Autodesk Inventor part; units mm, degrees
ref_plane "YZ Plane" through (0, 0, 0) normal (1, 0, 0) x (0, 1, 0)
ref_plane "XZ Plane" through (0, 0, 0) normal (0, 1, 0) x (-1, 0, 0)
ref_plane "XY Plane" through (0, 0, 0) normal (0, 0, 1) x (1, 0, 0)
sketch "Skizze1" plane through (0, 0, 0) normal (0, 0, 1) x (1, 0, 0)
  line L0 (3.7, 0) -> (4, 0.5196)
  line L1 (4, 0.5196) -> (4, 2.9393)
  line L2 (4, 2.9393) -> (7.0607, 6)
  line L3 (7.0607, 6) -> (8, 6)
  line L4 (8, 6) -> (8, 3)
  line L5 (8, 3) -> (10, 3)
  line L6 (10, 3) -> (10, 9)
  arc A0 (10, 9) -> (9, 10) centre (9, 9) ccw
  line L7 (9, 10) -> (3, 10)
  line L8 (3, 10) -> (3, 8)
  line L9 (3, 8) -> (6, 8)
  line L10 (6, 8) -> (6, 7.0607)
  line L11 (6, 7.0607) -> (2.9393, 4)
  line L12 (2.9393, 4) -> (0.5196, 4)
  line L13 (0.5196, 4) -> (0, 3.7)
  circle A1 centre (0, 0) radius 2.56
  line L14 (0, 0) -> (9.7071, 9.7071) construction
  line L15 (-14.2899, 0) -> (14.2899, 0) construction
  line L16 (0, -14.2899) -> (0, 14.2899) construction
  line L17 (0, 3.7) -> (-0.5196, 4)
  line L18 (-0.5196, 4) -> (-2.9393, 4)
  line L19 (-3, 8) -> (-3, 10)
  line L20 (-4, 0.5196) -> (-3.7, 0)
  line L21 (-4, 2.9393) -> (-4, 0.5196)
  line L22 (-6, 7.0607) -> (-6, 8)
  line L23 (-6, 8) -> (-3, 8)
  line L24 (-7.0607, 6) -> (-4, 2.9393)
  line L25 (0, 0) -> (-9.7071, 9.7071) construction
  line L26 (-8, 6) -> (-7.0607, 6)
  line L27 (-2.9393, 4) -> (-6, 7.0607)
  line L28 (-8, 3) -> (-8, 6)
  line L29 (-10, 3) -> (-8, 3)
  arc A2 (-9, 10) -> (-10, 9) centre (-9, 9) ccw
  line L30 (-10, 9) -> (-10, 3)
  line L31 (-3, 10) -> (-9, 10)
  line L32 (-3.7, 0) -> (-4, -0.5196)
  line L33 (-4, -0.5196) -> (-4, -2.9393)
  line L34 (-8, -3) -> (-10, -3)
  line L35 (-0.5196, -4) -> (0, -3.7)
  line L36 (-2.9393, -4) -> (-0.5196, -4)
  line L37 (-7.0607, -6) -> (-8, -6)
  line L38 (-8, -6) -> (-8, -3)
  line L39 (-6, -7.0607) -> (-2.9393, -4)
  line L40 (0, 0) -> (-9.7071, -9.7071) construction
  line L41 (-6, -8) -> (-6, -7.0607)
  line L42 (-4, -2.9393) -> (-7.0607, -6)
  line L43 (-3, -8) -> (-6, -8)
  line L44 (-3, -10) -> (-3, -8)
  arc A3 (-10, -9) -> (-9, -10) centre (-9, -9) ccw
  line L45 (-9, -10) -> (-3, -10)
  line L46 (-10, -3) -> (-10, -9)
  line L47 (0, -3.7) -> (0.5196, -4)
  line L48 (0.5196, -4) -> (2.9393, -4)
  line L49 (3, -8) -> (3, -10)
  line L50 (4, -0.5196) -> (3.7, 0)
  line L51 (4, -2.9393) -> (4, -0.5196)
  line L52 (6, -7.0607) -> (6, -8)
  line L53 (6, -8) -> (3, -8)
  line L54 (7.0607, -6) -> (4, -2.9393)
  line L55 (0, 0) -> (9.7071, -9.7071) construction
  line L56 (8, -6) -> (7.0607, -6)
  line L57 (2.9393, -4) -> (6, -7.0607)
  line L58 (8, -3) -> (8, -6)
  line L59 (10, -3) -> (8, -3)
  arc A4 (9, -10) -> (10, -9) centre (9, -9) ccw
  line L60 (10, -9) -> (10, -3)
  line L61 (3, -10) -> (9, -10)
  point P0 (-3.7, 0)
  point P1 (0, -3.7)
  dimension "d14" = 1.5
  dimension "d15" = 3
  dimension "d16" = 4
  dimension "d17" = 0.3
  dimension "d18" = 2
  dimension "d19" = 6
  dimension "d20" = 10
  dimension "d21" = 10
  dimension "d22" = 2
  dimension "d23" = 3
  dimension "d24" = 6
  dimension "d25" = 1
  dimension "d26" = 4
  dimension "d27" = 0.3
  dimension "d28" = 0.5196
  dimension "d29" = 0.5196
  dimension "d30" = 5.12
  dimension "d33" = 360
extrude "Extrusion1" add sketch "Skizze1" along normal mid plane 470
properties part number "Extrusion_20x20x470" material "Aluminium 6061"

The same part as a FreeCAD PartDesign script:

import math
import FreeCAD as App
import Part
import Sketcher

V = App.Vector
Q = App.Units.Quantity

doc = App.newDocument("Part")
body = doc.addObject("PartDesign::Body", "Body")

sketch1 = doc.addObject("Sketcher::SketchObject", "Sketch")
body.addObject(sketch1)
sketch1.AttachmentSupport = (doc.XY_Plane, [""])
sketch1.MapMode = "FlatFace"
sketch1.addGeometry([
    Part.LineSegment(V(4, -0.5, 0), V(3.7, 0, 0)),
    Part.LineSegment(V(3.7, 0, 0), V(4, 0.5, 0)),
    Part.LineSegment(V(4, 0.5, 0), V(4, 2.9, 0)),
    Part.LineSegment(V(4, 2.9, 0), V(7.1, 6, 0)),
    Part.LineSegment(V(7.1, 6, 0), V(8, 6, 0)),
    Part.LineSegment(V(8, 6, 0), V(8, 3, 0)),
    Part.LineSegment(V(8, 3, 0), V(10, 3, 0)),
    Part.LineSegment(V(10, 3, 0), V(10, 9, 0)),
    Part.ArcOfCircle(Part.Circle(V(9, 9, 0), V(0, 0, 1), 1), math.radians(0), math.radians(90)),
    Part.LineSegment(V(9, 10, 0), V(3, 10, 0)),
    Part.LineSegment(V(3, 10, 0), V(3, 8, 0)),
    Part.LineSegment(V(3, 8, 0), V(6, 8, 0)),
    Part.LineSegment(V(6, 8, 0), V(6, 7.1, 0)),
    Part.LineSegment(V(6, 7.1, 0), V(2.9, 4, 0)),
    Part.LineSegment(V(2.9, 4, 0), V(0.5, 4, 0)),
    Part.LineSegment(V(0.5, 4, 0), V(0, 3.7, 0)),
    Part.LineSegment(V(0, 3.7, 0), V(-0.5, 4, 0)),
    Part.LineSegment(V(-0.5, 4, 0), V(-2.9, 4, 0)),
    Part.LineSegment(V(-2.9, 4, 0), V(-6, 7.1, 0)),
    Part.LineSegment(V(-6, 7.1, 0), V(-6, 8, 0)),
    Part.LineSegment(V(-6, 8, 0), V(-3, 8, 0)),
    Part.LineSegment(V(-3, 8, 0), V(-3, 10, 0)),
    Part.LineSegment(V(-3, 10, 0), V(-9, 10, 0)),
    Part.ArcOfCircle(Part.Circle(V(-9, 9, 0), V(0, 0, 1), 1), math.radians(90), math.radians(180)),
    Part.LineSegment(V(-10, 9, 0), V(-10, 3, 0)),
    Part.LineSegment(V(-10, 3, 0), V(-8, 3, 0)),
    Part.LineSegment(V(-8, 3, 0), V(-8, 6, 0)),
    Part.LineSegment(V(-8, 6, 0), V(-7.1, 6, 0)),
    Part.LineSegment(V(-7.1, 6, 0), V(-4, 2.9, 0)),
    Part.LineSegment(V(-4, 2.9, 0), V(-4, 0.5, 0)),
    Part.LineSegment(V(-4, 0.5, 0), V(-3.7, 0, 0)),
    Part.LineSegment(V(-3.7, 0, 0), V(-4, -0.5, 0)),
    Part.LineSegment(V(-4, -0.5, 0), V(-4, -2.9, 0)),
    Part.LineSegment(V(-4, -2.9, 0), V(-7.1, -6, 0)),
    Part.LineSegment(V(-7.1, -6, 0), V(-8, -6, 0)),
    Part.LineSegment(V(-8, -6, 0), V(-8, -3, 0)),
    Part.LineSegment(V(-8, -3, 0), V(-10, -3, 0)),
    Part.LineSegment(V(-10, -3, 0), V(-10, -9, 0)),
    Part.ArcOfCircle(Part.Circle(V(-9, -9, 0), V(0, 0, 1), 1), math.radians(180), math.radians(270)),
    Part.LineSegment(V(-9, -10, 0), V(-3, -10, 0)),
    Part.LineSegment(V(-3, -10, 0), V(-3, -8, 0)),
    Part.LineSegment(V(-3, -8, 0), V(-6, -8, 0)),
    Part.LineSegment(V(-6, -8, 0), V(-6, -7.1, 0)),
    Part.LineSegment(V(-6, -7.1, 0), V(-2.9, -4, 0)),
    Part.LineSegment(V(-2.9, -4, 0), V(-0.5, -4, 0)),
    Part.LineSegment(V(-0.5, -4, 0), V(0, -3.7, 0)),
    Part.LineSegment(V(0, -3.7, 0), V(0.5, -4, 0)),
    Part.LineSegment(V(0.5, -4, 0), V(2.9, -4, 0)),
    Part.LineSegment(V(2.9, -4, 0), V(6, -7.1, 0)),
    Part.LineSegment(V(6, -7.1, 0), V(6, -8, 0)),
    Part.LineSegment(V(6, -8, 0), V(3, -8, 0)),
    Part.LineSegment(V(3, -8, 0), V(3, -10, 0)),
    Part.LineSegment(V(3, -10, 0), V(9, -10, 0)),
    Part.ArcOfCircle(Part.Circle(V(9, -9, 0), V(0, 0, 1), 1), math.radians(-90), math.radians(0)),
    Part.LineSegment(V(10, -9, 0), V(10, -3, 0)),
    Part.LineSegment(V(10, -3, 0), V(8, -3, 0)),
    Part.LineSegment(V(8, -3, 0), V(8, -6, 0)),
    Part.LineSegment(V(8, -6, 0), V(7.1, -6, 0)),
    Part.LineSegment(V(7.1, -6, 0), V(4, -2.9, 0)),
    Part.LineSegment(V(4, -2.9, 0), V(4, -0.5, 0)),
    Part.Circle(V(0, 0, 0), V(0, 0, 1), 2.6),
], False)
sketch1.addConstraint([
    Sketcher.Constraint("Coincident", 0, 2, 1, 1),
    Sketcher.Constraint("Coincident", 1, 2, 2, 1),
    Sketcher.Constraint("Coincident", 2, 2, 3, 1),
    Sketcher.Constraint("Coincident", 3, 2, 4, 1),
    Sketcher.Constraint("Coincident", 4, 2, 5, 1),
    Sketcher.Constraint("Coincident", 5, 2, 6, 1),
    Sketcher.Constraint("Coincident", 6, 2, 7, 1),
    Sketcher.Constraint("Tangent", 7, 2, 8, 1),
    Sketcher.Constraint("Tangent", 8, 2, 9, 1),
    Sketcher.Constraint("Coincident", 9, 2, 10, 1),
    Sketcher.Constraint("Coincident", 10, 2, 11, 1),
    Sketcher.Constraint("Coincident", 11, 2, 12, 1),
    Sketcher.Constraint("Coincident", 12, 2, 13, 1),
    Sketcher.Constraint("Coincident", 13, 2, 14, 1),
    Sketcher.Constraint("Coincident", 14, 2, 15, 1),
    Sketcher.Constraint("Coincident", 15, 2, 16, 1),
    Sketcher.Constraint("Coincident", 16, 2, 17, 1),
    Sketcher.Constraint("Coincident", 17, 2, 18, 1),
    Sketcher.Constraint("Coincident", 18, 2, 19, 1),
    Sketcher.Constraint("Coincident", 19, 2, 20, 1),
    Sketcher.Constraint("Coincident", 20, 2, 21, 1),
    Sketcher.Constraint("Coincident", 21, 2, 22, 1),
    Sketcher.Constraint("Tangent", 22, 2, 23, 1),
    Sketcher.Constraint("Tangent", 23, 2, 24, 1),
    Sketcher.Constraint("Coincident", 24, 2, 25, 1),
    Sketcher.Constraint("Coincident", 25, 2, 26, 1),
    Sketcher.Constraint("Coincident", 26, 2, 27, 1),
    Sketcher.Constraint("Coincident", 27, 2, 28, 1),
    Sketcher.Constraint("Coincident", 28, 2, 29, 1),
    Sketcher.Constraint("Coincident", 29, 2, 30, 1),
    Sketcher.Constraint("Coincident", 30, 2, 31, 1),
    Sketcher.Constraint("Coincident", 31, 2, 32, 1),
    Sketcher.Constraint("Coincident", 32, 2, 33, 1),
    Sketcher.Constraint("Coincident", 33, 2, 34, 1),
    Sketcher.Constraint("Coincident", 34, 2, 35, 1),
    Sketcher.Constraint("Coincident", 35, 2, 36, 1),
    Sketcher.Constraint("Coincident", 36, 2, 37, 1),
    Sketcher.Constraint("Tangent", 37, 2, 38, 1),
    Sketcher.Constraint("Tangent", 38, 2, 39, 1),
    Sketcher.Constraint("Coincident", 39, 2, 40, 1),
    Sketcher.Constraint("Coincident", 40, 2, 41, 1),
    Sketcher.Constraint("Coincident", 41, 2, 42, 1),
    Sketcher.Constraint("Coincident", 42, 2, 43, 1),
    Sketcher.Constraint("Coincident", 43, 2, 44, 1),
    Sketcher.Constraint("Coincident", 44, 2, 45, 1),
    Sketcher.Constraint("Coincident", 45, 2, 46, 1),
    Sketcher.Constraint("Coincident", 46, 2, 47, 1),
    Sketcher.Constraint("Coincident", 47, 2, 48, 1),
    Sketcher.Constraint("Coincident", 48, 2, 49, 1),
    Sketcher.Constraint("Coincident", 49, 2, 50, 1),
    Sketcher.Constraint("Coincident", 50, 2, 51, 1),
    Sketcher.Constraint("Coincident", 51, 2, 52, 1),
    Sketcher.Constraint("Tangent", 52, 2, 53, 1),
    Sketcher.Constraint("Tangent", 53, 2, 54, 1),
    Sketcher.Constraint("Coincident", 54, 2, 55, 1),
    Sketcher.Constraint("Coincident", 55, 2, 56, 1),
    Sketcher.Constraint("Coincident", 56, 2, 57, 1),
    Sketcher.Constraint("Coincident", 57, 2, 58, 1),
    Sketcher.Constraint("Coincident", 58, 2, 59, 1),
    Sketcher.Constraint("Coincident", 59, 2, 0, 1),
    Sketcher.Constraint("Vertical", 2),
    Sketcher.Constraint("Horizontal", 4),
    Sketcher.Constraint("Vertical", 5),
    Sketcher.Constraint("Horizontal", 6),
    Sketcher.Constraint("Vertical", 7),
    Sketcher.Constraint("Horizontal", 9),
    Sketcher.Constraint("Vertical", 10),
    Sketcher.Constraint("Horizontal", 11),
    Sketcher.Constraint("Vertical", 12),
    Sketcher.Constraint("Horizontal", 14),
    Sketcher.Constraint("Horizontal", 17),
    Sketcher.Constraint("Vertical", 19),
    Sketcher.Constraint("Horizontal", 20),
    Sketcher.Constraint("Vertical", 21),
    Sketcher.Constraint("Horizontal", 22),
    Sketcher.Constraint("Vertical", 24),
    Sketcher.Constraint("Horizontal", 25),
    Sketcher.Constraint("Vertical", 26),
    Sketcher.Constraint("Horizontal", 27),
    Sketcher.Constraint("Vertical", 29),
    Sketcher.Constraint("Vertical", 32),
    Sketcher.Constraint("Horizontal", 34),
    Sketcher.Constraint("Vertical", 35),
    Sketcher.Constraint("Horizontal", 36),
    Sketcher.Constraint("Vertical", 37),
    Sketcher.Constraint("Horizontal", 39),
    Sketcher.Constraint("Vertical", 40),
    Sketcher.Constraint("Horizontal", 41),
    Sketcher.Constraint("Vertical", 42),
    Sketcher.Constraint("Horizontal", 44),
    Sketcher.Constraint("Horizontal", 47),
    Sketcher.Constraint("Vertical", 49),
    Sketcher.Constraint("Horizontal", 50),
    Sketcher.Constraint("Vertical", 51),
    Sketcher.Constraint("Horizontal", 52),
    Sketcher.Constraint("Vertical", 54),
    Sketcher.Constraint("Horizontal", 55),
    Sketcher.Constraint("Vertical", 56),
    Sketcher.Constraint("Horizontal", 57),
    Sketcher.Constraint("Vertical", 59),
    Sketcher.Constraint("Coincident", 60, 3, -1, 1),
    Sketcher.Constraint("Equal", 8, 23),
    Sketcher.Constraint("Equal", 23, 38),
    Sketcher.Constraint("Equal", 38, 53),
    Sketcher.Constraint("Symmetric", 8, 3, 38, 3, -1, 1),
    Sketcher.Constraint("Symmetric", 23, 3, 53, 3, -1, 1),
    Sketcher.Constraint("Symmetric", 0, 2, 30, 2, -1, 1),
    Sketcher.Constraint("Symmetric", 1, 2, 31, 2, -1, 1),
    Sketcher.Constraint("Symmetric", 3, 2, 33, 2, -1, 1),
    Sketcher.Constraint("Symmetric", 5, 2, 35, 2, -1, 1),
    Sketcher.Constraint("Symmetric", 10, 2, 40, 2, -1, 1),
    Sketcher.Constraint("Symmetric", 12, 2, 42, 2, -1, 1),
    Sketcher.Constraint("Symmetric", 13, 2, 43, 2, -1, 1),
    Sketcher.Constraint("Symmetric", 15, 2, 45, 2, -1, 1),
    Sketcher.Constraint("Symmetric", 16, 2, 46, 2, -1, 1),
    Sketcher.Constraint("Symmetric", 18, 2, 48, 2, -1, 1),
    Sketcher.Constraint("Symmetric", 20, 2, 50, 2, -1, 1),
    Sketcher.Constraint("Symmetric", 25, 2, 55, 2, -1, 1),
    Sketcher.Constraint("Symmetric", 27, 2, 57, 2, -1, 1),
    Sketcher.Constraint("Symmetric", 28, 2, 58, 2, -1, 1),
    Sketcher.Constraint("Symmetric", 8, 3, 23, 3, -2),
    Sketcher.Constraint("Symmetric", 14, 2, 16, 2, -2),
    Sketcher.Constraint("Symmetric", 12, 2, 18, 2, -2),
    Sketcher.Constraint("Symmetric", 10, 2, 20, 2, -2),
    Sketcher.Constraint("Symmetric", 5, 2, 25, 2, -2),
    Sketcher.Constraint("Symmetric", 3, 2, 27, 2, -2),
    Sketcher.Constraint("Symmetric", 2, 2, 28, 2, -2),
    Sketcher.Constraint("PointOnObject", 0, 2, -1),
    Sketcher.Constraint("PointOnObject", 15, 2, -2),
    Sketcher.Constraint("Parallel", 3, 13),
    Sketcher.Constraint("Perpendicular", 0, 15),
    Sketcher.Constraint("Perpendicular", 1, 16),
    Sketcher.Constraint("Perpendicular", 13, 18),
    Sketcher.Constraint("Parallel", 18, 28),
    Sketcher.Constraint("Perpendicular", 15, 30),
    Sketcher.Constraint("Perpendicular", 28, 33),
    Sketcher.Constraint("Perpendicular", 30, 45),
    Sketcher.Constraint("Perpendicular", 43, 48),
    Sketcher.Constraint("Equal", 47, 2),
    Sketcher.Constraint("Equal", 50, 5),
    Sketcher.Constraint("Equal", 52, 7),
    Sketcher.Constraint("Equal", 55, 10),
    Sketcher.Constraint("Equal", 57, 12),
    Sketcher.Constraint("Equal", 3, 13),
    Sketcher.Constraint("Equal", 1, 15),
    Sketcher.Constraint("Radius", 8, Q("1 mm")),
    Sketcher.Constraint("Diameter", 60, Q("5.12 mm")),
    Sketcher.Constraint("DistanceX", 6, 1, 6, 2, Q("2 mm")),
    Sketcher.Constraint("DistanceX", 9, 2, 9, 1, Q("6 mm")),
    Sketcher.Constraint("DistanceX", 11, 1, 11, 2, Q("3 mm")),
    Sketcher.Constraint("DistanceX", -1, 1, 1, 2, Q("4 mm")),
    Sketcher.Constraint("DistanceY", -1, 1, 3, 2, Q("6 mm")),
    Sketcher.Constraint("Angle", 0, Q("120.0007 deg")),
    Sketcher.Constraint("Distance", 0, Q("0.6 mm")),
    Sketcher.Constraint("DistanceX", 4, 1, 4, 2, Q("0.9393 mm")),
])
pad1 = doc.addObject("PartDesign::Pad", "Pad")
body.addObject(pad1)
pad1.Profile = sketch1
pad1.Length = 470
pad1.Midplane = True

doc.recompute()
